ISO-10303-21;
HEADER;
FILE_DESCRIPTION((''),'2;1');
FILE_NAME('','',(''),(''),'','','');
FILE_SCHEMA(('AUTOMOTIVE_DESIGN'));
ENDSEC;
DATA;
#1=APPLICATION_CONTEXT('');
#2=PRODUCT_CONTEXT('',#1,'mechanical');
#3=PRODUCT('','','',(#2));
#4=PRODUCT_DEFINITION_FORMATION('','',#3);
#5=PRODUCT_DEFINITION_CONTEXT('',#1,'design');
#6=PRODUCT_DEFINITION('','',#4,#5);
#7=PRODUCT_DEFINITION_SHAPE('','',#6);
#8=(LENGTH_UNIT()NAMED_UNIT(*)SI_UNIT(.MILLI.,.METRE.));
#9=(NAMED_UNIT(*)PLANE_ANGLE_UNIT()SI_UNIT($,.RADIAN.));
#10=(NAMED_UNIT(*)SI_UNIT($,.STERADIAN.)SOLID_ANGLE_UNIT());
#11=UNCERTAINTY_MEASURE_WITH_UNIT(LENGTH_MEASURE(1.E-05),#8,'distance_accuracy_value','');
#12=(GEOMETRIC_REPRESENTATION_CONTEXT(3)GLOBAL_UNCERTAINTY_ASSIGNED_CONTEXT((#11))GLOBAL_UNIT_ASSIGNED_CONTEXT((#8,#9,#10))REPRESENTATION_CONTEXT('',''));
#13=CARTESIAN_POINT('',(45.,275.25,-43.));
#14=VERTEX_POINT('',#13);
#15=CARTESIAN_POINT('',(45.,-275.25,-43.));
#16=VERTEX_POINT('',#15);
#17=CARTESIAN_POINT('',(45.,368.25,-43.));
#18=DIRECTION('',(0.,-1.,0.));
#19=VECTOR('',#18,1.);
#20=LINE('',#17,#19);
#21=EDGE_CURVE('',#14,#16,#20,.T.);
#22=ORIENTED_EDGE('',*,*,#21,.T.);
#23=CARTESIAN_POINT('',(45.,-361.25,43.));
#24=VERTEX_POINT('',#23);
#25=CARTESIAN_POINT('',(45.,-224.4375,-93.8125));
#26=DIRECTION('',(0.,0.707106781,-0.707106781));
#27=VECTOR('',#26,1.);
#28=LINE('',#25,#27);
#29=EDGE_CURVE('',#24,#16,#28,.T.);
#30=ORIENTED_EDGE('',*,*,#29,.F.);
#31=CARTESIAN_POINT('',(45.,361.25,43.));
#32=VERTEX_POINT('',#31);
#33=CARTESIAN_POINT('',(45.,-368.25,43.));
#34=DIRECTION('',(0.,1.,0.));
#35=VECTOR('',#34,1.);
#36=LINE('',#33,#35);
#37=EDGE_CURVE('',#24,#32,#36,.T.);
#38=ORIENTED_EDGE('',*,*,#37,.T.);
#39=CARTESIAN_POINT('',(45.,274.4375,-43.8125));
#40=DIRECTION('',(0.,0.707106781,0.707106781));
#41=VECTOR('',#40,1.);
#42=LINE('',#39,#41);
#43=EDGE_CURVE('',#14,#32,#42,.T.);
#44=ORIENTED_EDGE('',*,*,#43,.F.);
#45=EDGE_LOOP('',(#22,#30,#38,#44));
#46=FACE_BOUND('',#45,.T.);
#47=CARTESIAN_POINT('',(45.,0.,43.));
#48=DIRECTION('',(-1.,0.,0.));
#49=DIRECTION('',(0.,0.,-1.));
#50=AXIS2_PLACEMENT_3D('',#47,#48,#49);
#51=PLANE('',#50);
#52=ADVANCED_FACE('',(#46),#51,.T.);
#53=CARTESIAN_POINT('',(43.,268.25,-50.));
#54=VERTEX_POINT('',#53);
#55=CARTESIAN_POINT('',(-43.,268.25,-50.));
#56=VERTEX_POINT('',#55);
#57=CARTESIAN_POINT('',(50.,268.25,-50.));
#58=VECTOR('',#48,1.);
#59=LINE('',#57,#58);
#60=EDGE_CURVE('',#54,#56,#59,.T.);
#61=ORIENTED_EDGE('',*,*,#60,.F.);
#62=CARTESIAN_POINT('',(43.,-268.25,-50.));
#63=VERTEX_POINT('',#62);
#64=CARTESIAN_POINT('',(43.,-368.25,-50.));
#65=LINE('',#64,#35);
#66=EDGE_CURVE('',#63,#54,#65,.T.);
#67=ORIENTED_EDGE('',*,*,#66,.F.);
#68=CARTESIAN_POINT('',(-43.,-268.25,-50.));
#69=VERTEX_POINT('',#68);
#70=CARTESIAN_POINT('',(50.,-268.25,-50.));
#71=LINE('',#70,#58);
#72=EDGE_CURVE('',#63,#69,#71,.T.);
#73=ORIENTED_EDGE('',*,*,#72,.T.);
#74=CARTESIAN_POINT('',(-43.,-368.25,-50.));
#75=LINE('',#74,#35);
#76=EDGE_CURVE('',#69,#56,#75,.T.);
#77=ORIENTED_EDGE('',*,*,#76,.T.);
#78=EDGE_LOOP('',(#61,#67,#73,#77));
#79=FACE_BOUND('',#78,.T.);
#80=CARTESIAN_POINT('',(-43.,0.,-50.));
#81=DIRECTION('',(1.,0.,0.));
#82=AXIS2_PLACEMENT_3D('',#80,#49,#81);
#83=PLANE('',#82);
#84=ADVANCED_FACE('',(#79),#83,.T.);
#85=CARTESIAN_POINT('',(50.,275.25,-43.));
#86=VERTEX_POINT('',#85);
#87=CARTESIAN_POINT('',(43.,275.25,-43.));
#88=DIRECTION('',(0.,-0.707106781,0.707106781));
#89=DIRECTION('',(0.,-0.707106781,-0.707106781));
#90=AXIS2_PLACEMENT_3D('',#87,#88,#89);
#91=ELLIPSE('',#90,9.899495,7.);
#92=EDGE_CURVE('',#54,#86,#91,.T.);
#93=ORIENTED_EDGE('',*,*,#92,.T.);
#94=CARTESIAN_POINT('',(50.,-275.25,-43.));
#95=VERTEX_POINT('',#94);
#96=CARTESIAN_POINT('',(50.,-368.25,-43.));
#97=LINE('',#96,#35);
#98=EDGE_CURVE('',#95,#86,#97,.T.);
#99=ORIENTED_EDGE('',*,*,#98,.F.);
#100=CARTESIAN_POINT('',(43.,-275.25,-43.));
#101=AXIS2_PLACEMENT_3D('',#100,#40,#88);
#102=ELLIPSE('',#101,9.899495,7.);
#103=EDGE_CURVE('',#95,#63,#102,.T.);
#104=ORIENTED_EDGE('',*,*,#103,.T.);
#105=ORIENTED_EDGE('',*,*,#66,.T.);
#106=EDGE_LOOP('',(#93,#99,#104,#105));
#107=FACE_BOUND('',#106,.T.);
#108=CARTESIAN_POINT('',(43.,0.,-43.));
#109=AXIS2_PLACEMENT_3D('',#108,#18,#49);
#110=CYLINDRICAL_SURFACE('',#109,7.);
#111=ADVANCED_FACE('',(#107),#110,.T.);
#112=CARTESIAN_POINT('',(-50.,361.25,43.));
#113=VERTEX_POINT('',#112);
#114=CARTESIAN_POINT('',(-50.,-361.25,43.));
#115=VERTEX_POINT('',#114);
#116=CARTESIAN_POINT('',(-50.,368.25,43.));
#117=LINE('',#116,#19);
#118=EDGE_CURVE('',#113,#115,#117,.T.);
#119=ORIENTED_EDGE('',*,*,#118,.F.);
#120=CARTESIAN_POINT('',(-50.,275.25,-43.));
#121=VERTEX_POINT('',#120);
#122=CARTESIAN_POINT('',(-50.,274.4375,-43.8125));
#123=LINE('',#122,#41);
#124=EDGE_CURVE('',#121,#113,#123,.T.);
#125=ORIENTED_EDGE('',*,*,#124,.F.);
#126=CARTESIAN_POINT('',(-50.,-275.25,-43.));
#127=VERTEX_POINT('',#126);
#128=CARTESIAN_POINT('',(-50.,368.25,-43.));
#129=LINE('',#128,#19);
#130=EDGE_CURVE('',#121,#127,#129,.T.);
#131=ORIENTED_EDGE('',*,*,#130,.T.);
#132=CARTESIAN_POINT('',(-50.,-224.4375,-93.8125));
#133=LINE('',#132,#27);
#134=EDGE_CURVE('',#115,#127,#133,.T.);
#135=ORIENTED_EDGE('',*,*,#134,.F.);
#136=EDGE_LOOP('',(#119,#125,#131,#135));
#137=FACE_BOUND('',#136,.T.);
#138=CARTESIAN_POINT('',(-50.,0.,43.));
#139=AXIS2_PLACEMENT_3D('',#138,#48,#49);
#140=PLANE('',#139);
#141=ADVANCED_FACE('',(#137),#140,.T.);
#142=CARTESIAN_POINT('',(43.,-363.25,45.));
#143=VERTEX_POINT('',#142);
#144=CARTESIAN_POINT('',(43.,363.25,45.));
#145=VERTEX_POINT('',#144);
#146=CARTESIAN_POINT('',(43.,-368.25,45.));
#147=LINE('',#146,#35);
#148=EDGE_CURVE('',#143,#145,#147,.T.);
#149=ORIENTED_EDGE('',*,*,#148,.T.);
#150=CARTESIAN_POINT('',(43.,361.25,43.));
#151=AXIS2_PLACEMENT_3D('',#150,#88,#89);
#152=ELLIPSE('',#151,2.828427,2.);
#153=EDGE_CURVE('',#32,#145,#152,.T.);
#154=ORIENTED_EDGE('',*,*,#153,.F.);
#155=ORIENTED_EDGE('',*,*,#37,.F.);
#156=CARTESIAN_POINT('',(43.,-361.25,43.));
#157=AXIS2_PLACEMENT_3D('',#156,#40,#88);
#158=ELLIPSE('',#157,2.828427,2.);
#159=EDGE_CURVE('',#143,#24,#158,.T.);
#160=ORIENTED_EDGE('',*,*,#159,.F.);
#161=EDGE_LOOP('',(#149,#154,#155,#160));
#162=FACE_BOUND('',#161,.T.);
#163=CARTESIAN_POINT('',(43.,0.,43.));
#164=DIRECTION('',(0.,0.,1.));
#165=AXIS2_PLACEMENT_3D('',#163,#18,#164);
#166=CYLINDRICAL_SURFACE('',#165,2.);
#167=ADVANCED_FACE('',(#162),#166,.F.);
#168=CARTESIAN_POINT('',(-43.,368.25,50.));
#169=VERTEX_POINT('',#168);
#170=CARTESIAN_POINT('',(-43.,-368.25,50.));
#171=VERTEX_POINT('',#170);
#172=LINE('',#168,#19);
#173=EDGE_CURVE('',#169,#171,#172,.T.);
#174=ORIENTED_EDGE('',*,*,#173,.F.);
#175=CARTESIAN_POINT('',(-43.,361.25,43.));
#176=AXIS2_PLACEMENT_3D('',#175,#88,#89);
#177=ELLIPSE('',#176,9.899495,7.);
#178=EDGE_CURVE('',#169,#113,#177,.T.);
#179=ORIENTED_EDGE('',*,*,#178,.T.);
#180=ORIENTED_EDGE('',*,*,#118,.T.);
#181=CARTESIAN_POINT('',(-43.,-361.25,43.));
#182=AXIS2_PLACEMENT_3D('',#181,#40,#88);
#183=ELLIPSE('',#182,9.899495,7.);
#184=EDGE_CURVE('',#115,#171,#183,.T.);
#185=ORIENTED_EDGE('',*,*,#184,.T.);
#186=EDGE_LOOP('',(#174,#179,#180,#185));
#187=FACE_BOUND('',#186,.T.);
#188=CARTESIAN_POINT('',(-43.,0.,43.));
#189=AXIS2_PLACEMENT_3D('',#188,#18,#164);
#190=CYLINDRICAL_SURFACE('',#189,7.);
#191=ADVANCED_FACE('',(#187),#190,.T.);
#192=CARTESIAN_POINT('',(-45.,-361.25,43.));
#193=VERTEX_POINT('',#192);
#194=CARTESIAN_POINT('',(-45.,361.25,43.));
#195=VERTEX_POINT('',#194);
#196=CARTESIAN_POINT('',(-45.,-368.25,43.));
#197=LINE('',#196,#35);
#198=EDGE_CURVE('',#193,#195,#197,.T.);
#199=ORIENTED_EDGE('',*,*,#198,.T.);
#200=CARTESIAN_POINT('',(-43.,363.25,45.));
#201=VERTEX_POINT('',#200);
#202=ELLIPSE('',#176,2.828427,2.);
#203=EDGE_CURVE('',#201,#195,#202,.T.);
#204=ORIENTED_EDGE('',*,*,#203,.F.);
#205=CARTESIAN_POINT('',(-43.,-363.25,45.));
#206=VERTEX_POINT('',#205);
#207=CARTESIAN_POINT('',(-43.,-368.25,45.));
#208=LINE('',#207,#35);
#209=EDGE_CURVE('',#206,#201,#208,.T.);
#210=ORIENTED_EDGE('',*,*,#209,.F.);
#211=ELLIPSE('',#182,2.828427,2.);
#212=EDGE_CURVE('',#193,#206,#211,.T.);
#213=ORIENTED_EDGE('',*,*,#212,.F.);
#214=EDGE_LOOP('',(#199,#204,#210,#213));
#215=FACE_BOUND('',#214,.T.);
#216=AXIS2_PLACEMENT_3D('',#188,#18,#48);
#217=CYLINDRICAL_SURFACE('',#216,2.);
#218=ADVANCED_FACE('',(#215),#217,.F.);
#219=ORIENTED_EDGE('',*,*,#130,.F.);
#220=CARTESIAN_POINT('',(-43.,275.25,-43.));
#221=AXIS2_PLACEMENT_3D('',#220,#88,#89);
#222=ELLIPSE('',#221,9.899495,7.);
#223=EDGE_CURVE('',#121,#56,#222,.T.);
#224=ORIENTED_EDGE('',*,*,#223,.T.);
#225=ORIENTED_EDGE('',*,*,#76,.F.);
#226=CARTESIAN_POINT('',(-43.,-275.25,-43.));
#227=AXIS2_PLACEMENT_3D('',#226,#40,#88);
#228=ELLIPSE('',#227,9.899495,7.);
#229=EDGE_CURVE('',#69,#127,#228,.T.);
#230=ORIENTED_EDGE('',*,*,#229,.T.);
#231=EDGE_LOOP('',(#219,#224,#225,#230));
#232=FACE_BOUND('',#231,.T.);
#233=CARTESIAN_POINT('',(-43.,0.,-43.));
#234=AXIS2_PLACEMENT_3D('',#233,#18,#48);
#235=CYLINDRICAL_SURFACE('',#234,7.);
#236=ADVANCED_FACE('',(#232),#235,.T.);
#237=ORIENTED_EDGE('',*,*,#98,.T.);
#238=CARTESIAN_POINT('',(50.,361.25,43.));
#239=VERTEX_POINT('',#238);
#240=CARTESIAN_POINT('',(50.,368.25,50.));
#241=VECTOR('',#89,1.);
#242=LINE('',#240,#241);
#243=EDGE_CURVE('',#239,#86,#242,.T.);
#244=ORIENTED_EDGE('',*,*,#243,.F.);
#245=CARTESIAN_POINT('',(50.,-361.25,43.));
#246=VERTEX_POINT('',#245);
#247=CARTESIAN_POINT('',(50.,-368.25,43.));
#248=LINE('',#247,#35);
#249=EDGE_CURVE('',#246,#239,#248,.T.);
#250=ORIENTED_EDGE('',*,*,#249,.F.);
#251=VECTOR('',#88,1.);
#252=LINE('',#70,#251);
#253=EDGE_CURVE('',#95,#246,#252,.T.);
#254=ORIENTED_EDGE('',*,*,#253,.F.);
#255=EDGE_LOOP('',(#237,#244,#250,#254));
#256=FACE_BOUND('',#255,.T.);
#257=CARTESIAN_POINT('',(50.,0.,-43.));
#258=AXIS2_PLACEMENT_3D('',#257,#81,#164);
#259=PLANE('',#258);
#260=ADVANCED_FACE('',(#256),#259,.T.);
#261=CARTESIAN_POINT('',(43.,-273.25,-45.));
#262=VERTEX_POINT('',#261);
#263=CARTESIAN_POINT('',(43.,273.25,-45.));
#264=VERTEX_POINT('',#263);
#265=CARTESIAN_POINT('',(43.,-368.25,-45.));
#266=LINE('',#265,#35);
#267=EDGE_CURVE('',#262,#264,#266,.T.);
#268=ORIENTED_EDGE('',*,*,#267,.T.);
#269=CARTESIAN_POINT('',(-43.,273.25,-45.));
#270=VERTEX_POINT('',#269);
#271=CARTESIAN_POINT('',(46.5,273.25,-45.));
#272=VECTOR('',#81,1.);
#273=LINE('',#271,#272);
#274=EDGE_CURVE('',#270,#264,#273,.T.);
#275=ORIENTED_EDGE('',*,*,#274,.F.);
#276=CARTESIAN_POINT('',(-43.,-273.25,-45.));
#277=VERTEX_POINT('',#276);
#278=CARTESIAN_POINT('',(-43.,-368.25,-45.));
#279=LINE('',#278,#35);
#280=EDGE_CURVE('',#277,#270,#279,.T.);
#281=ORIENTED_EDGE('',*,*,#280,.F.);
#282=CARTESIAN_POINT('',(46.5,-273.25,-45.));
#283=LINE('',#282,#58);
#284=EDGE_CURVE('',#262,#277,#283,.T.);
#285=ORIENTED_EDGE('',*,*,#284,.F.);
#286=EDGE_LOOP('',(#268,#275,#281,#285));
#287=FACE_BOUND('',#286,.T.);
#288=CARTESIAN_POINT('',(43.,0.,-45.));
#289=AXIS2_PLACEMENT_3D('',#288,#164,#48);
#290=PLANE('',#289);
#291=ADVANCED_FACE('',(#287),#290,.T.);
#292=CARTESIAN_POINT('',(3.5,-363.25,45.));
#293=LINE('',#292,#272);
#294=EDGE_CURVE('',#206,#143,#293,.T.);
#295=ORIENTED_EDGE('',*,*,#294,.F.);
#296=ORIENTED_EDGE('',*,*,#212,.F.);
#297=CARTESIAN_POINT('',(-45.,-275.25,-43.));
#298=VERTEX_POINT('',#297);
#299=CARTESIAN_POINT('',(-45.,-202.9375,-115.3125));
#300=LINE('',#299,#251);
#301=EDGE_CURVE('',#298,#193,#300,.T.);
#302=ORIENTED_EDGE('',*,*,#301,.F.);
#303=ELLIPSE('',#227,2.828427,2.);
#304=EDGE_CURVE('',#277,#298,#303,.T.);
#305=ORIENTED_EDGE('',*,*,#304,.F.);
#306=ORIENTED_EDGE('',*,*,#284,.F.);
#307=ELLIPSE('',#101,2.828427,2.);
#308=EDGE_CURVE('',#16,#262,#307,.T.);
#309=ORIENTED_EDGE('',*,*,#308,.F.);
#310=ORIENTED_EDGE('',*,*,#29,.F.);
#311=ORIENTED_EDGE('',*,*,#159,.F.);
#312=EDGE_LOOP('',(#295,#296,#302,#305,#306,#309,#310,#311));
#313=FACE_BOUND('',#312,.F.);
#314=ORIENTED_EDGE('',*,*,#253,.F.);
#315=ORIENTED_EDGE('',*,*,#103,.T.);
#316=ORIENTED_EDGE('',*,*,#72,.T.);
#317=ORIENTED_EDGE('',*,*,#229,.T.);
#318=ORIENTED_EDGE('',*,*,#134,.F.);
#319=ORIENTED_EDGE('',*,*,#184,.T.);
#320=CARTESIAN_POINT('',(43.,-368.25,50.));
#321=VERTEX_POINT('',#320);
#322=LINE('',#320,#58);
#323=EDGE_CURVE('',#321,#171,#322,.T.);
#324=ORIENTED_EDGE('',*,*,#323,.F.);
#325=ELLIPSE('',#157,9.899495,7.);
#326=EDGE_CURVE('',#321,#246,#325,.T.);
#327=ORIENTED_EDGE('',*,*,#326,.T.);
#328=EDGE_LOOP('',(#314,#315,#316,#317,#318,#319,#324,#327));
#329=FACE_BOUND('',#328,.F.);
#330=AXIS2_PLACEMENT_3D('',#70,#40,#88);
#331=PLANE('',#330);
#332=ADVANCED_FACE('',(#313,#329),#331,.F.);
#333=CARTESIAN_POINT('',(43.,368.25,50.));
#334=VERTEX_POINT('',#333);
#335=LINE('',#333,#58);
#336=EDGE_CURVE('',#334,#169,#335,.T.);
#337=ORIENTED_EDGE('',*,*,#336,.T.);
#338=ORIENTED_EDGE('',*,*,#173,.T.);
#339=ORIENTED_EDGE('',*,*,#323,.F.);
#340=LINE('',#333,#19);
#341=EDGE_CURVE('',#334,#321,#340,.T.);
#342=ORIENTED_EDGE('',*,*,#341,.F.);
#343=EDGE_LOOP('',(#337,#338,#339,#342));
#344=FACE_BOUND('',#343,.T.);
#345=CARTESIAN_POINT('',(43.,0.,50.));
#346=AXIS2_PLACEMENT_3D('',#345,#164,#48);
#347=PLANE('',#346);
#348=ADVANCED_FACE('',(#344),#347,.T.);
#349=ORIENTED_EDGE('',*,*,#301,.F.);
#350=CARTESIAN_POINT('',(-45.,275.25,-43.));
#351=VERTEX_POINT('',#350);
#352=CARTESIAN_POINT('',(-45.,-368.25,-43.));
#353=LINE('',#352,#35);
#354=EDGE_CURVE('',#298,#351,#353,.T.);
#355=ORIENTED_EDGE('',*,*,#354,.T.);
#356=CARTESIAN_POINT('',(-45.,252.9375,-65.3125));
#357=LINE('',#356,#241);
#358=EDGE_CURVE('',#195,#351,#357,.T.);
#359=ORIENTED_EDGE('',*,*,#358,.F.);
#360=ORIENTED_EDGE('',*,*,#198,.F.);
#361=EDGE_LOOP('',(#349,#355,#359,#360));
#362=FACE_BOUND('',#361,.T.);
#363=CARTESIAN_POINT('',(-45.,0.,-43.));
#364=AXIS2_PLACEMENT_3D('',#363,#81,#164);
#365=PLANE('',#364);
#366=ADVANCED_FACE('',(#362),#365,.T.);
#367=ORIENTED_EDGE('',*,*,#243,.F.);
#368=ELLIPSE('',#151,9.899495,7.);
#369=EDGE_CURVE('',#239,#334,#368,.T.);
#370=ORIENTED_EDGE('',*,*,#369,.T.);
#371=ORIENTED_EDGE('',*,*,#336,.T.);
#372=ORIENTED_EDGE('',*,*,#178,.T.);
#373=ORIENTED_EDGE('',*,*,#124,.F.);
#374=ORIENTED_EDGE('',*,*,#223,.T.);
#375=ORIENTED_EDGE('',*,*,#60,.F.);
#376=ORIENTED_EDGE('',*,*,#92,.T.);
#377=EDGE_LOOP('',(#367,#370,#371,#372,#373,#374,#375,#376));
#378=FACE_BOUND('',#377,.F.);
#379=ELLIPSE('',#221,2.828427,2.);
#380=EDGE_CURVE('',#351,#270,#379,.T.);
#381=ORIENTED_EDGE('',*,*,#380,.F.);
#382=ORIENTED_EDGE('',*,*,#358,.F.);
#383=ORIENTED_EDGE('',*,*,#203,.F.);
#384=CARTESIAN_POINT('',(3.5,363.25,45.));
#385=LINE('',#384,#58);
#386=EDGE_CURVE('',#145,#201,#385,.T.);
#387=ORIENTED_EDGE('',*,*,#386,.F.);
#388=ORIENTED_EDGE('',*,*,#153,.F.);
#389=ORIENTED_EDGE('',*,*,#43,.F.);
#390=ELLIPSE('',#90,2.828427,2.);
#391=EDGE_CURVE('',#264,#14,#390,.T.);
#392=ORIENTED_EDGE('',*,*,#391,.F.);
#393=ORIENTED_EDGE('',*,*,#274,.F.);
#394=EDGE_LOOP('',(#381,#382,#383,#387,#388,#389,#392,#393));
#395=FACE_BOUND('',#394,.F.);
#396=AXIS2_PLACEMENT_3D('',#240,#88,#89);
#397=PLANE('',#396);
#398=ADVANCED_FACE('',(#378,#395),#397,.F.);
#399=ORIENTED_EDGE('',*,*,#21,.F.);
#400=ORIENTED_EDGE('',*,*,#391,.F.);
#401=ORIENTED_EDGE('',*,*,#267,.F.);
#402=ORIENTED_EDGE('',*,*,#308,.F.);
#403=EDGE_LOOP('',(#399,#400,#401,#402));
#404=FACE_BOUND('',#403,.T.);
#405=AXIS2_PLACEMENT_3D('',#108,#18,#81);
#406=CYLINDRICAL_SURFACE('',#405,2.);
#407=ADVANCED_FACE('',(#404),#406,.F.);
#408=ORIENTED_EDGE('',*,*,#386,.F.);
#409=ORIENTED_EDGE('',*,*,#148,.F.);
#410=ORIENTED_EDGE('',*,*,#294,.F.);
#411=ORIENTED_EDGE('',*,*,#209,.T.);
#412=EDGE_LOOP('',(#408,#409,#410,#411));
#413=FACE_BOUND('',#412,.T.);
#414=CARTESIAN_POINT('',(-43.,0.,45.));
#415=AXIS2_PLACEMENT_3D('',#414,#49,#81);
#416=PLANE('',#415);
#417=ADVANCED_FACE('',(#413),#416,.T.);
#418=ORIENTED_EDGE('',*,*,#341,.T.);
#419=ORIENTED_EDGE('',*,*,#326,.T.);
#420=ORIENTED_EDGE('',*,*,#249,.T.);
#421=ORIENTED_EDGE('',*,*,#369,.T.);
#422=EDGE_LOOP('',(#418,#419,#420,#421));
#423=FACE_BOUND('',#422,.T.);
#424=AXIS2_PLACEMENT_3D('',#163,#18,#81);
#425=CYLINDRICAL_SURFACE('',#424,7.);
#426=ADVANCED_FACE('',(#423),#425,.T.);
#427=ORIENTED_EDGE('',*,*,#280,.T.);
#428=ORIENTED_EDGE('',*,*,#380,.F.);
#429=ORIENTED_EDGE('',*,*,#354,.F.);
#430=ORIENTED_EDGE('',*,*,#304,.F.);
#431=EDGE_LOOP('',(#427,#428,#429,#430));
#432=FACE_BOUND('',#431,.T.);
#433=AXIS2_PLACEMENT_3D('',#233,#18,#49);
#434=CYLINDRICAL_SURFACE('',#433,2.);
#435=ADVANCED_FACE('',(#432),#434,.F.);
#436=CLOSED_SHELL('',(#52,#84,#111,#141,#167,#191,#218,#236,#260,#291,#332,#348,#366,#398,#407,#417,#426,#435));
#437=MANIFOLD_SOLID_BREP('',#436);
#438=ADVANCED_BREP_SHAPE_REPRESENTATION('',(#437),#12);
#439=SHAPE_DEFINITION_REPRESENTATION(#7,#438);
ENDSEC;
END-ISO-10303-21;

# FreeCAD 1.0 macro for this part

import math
import FreeCAD as App
import Part
import Sketcher

V = App.Vector
Q = App.Units.Quantity


def add_polygon(sketch, points):
    """Adds a closed chain of lines whose ends are joined by coincident constraints."""
    first, n = sketch.GeometryCount, len(points)
    for a, b in zip(points, points[1:] + points[:1]):
        sketch.addGeometry(Part.LineSegment(App.Vector(*a, 0), App.Vector(*b, 0)), False)
    for i in range(n):
        sketch.addConstraint(Sketcher.Constraint("Coincident", first + i, 2, first + (i + 1) % n, 1))

doc = App.newDocument("Part")
params = doc.addObject("Spreadsheet::Sheet", "Params")
for row, (alias, value) in enumerate([
    ("sketch1_radius", "7 mm"),
    ("sketch1_radius2", "2 mm"),
    ("sketch1_width", "86 mm"),
    ("pad1_length", "736.5 mm"),
    ("sketch2_width", "100 mm"),
], start=1):
    params.set(f"A{row}", alias)
    params.set(f"B{row}", "=" + value)
    params.setAlias(f"B{row}", alias)

body = doc.addObject("PartDesign::Body", "Body")

# Sketch on XZ plane
sketch1 = doc.addObject("Sketcher::SketchObject", "Sketch")
body.addObject(sketch1)
sketch1.AttachmentSupport = (doc.XZ_Plane, [""])
sketch1.MapMode = "FlatFace"
sketch1.addGeometry([
    Part.ArcOfCircle(Part.Circle(V(43, 43, 0), V(0, 0, 1), 7), math.radians(0), math.radians(90)),  # 0
    Part.LineSegment(V(43, 50, 0), V(-43, 50, 0)),  # 1
    Part.ArcOfCircle(Part.Circle(V(-43, 43, 0), V(0, 0, 1), 7), math.radians(90), math.radians(180)),  # 2
    Part.LineSegment(V(-50, 43, 0), V(-50, -43, 0)),  # 3
    Part.ArcOfCircle(Part.Circle(V(-43, -43, 0), V(0, 0, 1), 7), math.radians(180), math.radians(270)),  # 4
    Part.LineSegment(V(-43, -50, 0), V(43, -50, 0)),  # 5
    Part.ArcOfCircle(Part.Circle(V(43, -43, 0), V(0, 0, 1), 7), math.radians(-90), math.radians(0)),  # 6
    Part.LineSegment(V(50, -43, 0), V(50, 43, 0)),  # 7
    Part.LineSegment(V(45, 43, 0), V(45, -43, 0)),  # 8
    Part.ArcOfCircle(Part.Circle(V(43, -43, 0), V(0, 0, 1), 2), math.radians(-90), math.radians(0)),  # 9
    Part.LineSegment(V(43, -45, 0), V(-43, -45, 0)),  # 10
    Part.ArcOfCircle(Part.Circle(V(-43, -43, 0), V(0, 0, 1), 2), math.radians(180), math.radians(270)),  # 11
    Part.LineSegment(V(-45, -43, 0), V(-45, 43, 0)),  # 12
    Part.ArcOfCircle(Part.Circle(V(-43, 43, 0), V(0, 0, 1), 2), math.radians(90), math.radians(180)),  # 13
    Part.LineSegment(V(-43, 45, 0), V(43, 45, 0)),  # 14
    Part.ArcOfCircle(Part.Circle(V(43, 43, 0), V(0, 0, 1), 2), math.radians(0), math.radians(90)),  # 15
], False)
sketch1.addConstraint([
    Sketcher.Constraint("Tangent", 0, 2, 1, 1),
    Sketcher.Constraint("Tangent", 1, 2, 2, 1),
    Sketcher.Constraint("Tangent", 2, 2, 3, 1),
    Sketcher.Constraint("Tangent", 3, 2, 4, 1),
    Sketcher.Constraint("Tangent", 4, 2, 5, 1),
    Sketcher.Constraint("Tangent", 5, 2, 6, 1),
    Sketcher.Constraint("Tangent", 6, 2, 7, 1),
    Sketcher.Constraint("Tangent", 7, 2, 0, 1),
    Sketcher.Constraint("Tangent", 8, 2, 9, 2),
    Sketcher.Constraint("Tangent", 9, 1, 10, 1),
    Sketcher.Constraint("Tangent", 10, 2, 11, 2),
    Sketcher.Constraint("Tangent", 11, 1, 12, 1),
    Sketcher.Constraint("Tangent", 12, 2, 13, 2),
    Sketcher.Constraint("Tangent", 13, 1, 14, 1),
    Sketcher.Constraint("Tangent", 14, 2, 15, 2),
    Sketcher.Constraint("Tangent", 15, 1, 8, 1),
    Sketcher.Constraint("Horizontal", 1),
    Sketcher.Constraint("Vertical", 3),
    Sketcher.Constraint("Horizontal", 5),
    Sketcher.Constraint("Vertical", 7),
    Sketcher.Constraint("Vertical", 8),
    Sketcher.Constraint("Horizontal", 10),
    Sketcher.Constraint("Vertical", 12),
    Sketcher.Constraint("Horizontal", 14),
    Sketcher.Constraint("Coincident", 9, 3, 6, 3),
    Sketcher.Constraint("Coincident", 11, 3, 4, 3),
    Sketcher.Constraint("Coincident", 13, 3, 2, 3),
    Sketcher.Constraint("Equal", 0, 2),
    Sketcher.Constraint("Equal", 2, 4),
    Sketcher.Constraint("Equal", 4, 6),
    Sketcher.Constraint("Equal", 13, 15),
    Sketcher.Constraint("Symmetric", 0, 3, 4, 3, -1, 1),
    Sketcher.Constraint("Equal", 14, 3),
    Sketcher.Constraint("Radius", 0, Q("7 mm")),
    Sketcher.Constraint("Radius", 9, Q("2 mm")),
    Sketcher.Constraint("DistanceX", 1, 2, 1, 1, Q("86 mm")),
])
sketch1.setExpression("Constraints[33]", "Params.sketch1_radius")
sketch1.setExpression("Constraints[34]", "Params.sketch1_radius2")
sketch1.setExpression("Constraints[35]", "Params.sketch1_width")
pad1 = doc.addObject("PartDesign::Pad", "Pad")
body.addObject(pad1)
pad1.Profile = sketch1
pad1.setExpression("Length", "Params.pad1_length")
pad1.Midplane = True

# Sketch on YZ plane
sketch2 = doc.addObject("Sketcher::SketchObject", "Sketch001")
body.addObject(sketch2)
sketch2.AttachmentSupport = (doc.YZ_Plane, [""])
sketch2.MapMode = "FlatFace"
sketch2.AttachmentOffset = App.Placement(V(0, 0, 50), App.Rotation())
add_polygon(sketch2, [(-368, -50), (-268, -50), (-368, 50)])  # lines 0-2
add_polygon(sketch2, [(368, 50), (268, -50), (368, -50)])  # lines 3-5
sketch2.addConstraint([
    Sketcher.Constraint("Horizontal", 0),
    Sketcher.Constraint("Vertical", 2),
    Sketcher.Constraint("Horizontal", 4),
    Sketcher.Constraint("Vertical", 5),
    Sketcher.Constraint("Symmetric", 1, 2, 4, 2, -1, 1),
    Sketcher.Constraint("Symmetric", 0, 2, 3, 2, -2),
    Sketcher.Constraint("Perpendicular", 1, 3),
    Sketcher.Constraint("Horizontal", 1, 2, 5, 2),
    Sketcher.Constraint("DistanceX", 0, 1, 0, 2, Q("100 mm")),
    Sketcher.Constraint("DistanceX", 0, 2, 3, 2, Q("536.5 mm")),
])
sketch2.setExpression("Constraints[14]", "Params.sketch2_width")
pocket1 = doc.addObject("PartDesign::Pocket", "Pocket")
body.addObject(pocket1)
pocket1.Profile = sketch2
pocket1.Type = "ThroughAll"

doc.recompute()
